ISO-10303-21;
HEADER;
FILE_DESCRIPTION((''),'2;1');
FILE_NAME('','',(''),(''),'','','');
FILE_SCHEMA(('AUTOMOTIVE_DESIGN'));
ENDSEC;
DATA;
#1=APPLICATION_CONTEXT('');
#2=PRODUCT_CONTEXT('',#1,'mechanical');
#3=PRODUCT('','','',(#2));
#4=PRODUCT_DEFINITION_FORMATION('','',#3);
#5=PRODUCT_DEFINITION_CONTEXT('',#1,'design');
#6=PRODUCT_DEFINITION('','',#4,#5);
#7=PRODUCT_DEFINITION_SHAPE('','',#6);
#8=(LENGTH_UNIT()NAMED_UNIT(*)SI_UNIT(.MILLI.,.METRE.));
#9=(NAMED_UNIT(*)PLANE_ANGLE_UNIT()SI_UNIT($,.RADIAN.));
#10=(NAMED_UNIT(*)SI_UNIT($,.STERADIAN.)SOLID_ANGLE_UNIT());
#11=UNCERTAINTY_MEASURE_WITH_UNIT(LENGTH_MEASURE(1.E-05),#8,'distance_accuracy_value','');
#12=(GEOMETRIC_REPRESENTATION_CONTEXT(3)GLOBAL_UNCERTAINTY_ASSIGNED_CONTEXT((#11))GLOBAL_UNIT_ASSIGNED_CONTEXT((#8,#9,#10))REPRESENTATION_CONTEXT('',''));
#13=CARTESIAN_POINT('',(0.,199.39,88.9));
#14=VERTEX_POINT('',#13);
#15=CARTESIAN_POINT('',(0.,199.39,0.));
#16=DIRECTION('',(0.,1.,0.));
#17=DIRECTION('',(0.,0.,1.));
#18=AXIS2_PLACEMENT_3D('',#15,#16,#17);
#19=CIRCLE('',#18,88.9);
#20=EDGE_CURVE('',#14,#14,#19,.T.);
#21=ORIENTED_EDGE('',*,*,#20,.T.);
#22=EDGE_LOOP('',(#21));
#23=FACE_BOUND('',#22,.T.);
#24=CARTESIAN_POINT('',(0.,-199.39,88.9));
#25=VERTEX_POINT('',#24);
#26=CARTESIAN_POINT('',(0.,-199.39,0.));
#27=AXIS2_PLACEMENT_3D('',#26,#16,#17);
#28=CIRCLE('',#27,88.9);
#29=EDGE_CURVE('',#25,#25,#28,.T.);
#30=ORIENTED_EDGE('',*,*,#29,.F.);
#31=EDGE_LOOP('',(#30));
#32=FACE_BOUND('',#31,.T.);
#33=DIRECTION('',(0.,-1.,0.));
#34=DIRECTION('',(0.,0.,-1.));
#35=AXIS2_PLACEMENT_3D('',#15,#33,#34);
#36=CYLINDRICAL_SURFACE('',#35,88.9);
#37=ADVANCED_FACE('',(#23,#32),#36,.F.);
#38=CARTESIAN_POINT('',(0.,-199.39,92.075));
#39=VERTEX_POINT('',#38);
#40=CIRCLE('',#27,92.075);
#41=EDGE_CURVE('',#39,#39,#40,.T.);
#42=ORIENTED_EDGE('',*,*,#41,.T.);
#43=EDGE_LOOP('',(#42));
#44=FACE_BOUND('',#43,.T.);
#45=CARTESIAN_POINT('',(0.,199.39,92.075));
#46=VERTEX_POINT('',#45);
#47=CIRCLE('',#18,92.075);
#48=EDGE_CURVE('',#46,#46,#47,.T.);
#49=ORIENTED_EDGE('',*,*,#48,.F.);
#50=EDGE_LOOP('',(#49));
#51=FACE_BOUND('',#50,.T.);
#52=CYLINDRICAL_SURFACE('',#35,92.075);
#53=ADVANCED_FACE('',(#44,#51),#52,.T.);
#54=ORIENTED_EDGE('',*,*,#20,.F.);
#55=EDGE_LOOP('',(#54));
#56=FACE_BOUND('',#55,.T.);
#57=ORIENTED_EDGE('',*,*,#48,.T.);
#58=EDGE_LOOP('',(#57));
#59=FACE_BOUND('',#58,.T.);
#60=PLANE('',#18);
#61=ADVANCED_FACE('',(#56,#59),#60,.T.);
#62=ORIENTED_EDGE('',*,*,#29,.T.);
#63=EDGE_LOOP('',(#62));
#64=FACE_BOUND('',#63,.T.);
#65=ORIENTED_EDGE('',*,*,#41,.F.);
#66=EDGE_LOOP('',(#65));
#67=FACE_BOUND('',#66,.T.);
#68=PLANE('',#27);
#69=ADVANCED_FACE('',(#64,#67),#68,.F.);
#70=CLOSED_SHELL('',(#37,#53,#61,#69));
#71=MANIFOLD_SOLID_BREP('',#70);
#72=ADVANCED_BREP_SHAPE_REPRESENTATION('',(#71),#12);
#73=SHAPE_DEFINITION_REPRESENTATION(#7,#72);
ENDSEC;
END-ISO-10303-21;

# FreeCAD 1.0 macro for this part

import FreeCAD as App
import Part
import Sketcher
Q = App.Units.Quantity

doc = App.newDocument("Part")
body = doc.addObject("PartDesign::Body", "Body")

# Sketch on XZ plane
sketch1 = body.newObject("Sketcher::SketchObject", "Sketch")
sketch1.AttachmentSupport = (doc.getObject("XZ_Plane"), [""])
sketch1.MapMode = "FlatFace"
sketch1.addGeometry([
    Part.Circle(App.Vector(0, 0, 0), App.Vector(0, 0, 1), 92),
    Part.Circle(App.Vector(0, 0, 0), App.Vector(0, 0, 1), 89),
], False)
sketch1.addConstraint([
    Sketcher.Constraint("Coincident", 0, 3, -1, 1),
    Sketcher.Constraint("Coincident", 1, 3, -1, 1),
    Sketcher.Constraint("Diameter", 1, Q("7 in")),
    Sketcher.Constraint("Diameter", 0, Q("7.25 in")),
])
pad1 = body.newObject("PartDesign::Pad", "Pad")
pad1.Profile = sketch1
pad1.Length = Q("15.7 in")
pad1.Midplane = True

doc.recompute()
